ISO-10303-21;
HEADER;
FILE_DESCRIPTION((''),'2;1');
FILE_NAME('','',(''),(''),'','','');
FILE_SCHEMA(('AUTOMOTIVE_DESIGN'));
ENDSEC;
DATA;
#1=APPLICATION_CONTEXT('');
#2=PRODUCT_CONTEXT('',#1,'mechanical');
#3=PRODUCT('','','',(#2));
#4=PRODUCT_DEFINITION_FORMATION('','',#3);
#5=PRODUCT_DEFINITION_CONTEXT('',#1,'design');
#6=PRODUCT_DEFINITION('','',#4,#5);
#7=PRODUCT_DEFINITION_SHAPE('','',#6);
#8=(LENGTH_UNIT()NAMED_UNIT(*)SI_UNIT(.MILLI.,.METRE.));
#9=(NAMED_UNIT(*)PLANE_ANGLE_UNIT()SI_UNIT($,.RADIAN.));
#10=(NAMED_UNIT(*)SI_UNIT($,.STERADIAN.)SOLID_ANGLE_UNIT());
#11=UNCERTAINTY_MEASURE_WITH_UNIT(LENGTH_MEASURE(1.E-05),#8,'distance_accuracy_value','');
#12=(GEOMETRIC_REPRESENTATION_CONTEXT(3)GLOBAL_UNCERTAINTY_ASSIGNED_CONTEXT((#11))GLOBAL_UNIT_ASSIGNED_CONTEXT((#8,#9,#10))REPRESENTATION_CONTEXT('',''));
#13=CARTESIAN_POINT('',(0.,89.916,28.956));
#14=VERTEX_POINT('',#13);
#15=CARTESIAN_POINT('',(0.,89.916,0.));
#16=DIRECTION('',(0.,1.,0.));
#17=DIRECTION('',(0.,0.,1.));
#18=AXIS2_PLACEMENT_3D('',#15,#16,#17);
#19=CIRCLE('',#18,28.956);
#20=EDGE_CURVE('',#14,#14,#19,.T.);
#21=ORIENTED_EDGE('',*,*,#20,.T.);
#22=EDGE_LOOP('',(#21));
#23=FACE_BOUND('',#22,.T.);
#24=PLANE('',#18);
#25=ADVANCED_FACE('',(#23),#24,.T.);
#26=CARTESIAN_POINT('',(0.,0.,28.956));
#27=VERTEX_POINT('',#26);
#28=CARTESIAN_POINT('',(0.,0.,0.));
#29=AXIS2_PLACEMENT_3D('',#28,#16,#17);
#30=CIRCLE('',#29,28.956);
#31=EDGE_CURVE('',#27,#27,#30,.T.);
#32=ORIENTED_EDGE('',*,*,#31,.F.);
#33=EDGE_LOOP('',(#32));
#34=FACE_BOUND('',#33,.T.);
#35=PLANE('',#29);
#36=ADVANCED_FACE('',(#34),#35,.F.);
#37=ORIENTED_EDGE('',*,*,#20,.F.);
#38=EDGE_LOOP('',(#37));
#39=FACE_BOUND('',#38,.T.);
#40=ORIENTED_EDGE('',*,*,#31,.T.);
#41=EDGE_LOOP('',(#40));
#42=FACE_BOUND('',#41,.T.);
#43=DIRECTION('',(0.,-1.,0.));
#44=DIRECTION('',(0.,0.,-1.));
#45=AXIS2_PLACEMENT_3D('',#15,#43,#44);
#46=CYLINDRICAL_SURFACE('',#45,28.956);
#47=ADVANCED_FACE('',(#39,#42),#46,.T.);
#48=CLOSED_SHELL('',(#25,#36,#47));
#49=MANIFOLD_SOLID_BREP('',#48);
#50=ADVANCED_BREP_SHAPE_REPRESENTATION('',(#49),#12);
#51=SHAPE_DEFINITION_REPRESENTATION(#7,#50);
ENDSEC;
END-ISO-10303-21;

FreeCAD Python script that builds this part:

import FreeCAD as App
import Part
import Sketcher

V = App.Vector
Q = App.Units.Quantity

doc = App.newDocument("Part")
params = doc.addObject("Spreadsheet::Sheet", "Params")
for row, (alias, value) in enumerate([
    ("sketch1_diameter", "2.28 in"),
    ("pad1_length", "3.54 in"),
], start=1):
    params.set(f"A{row}", alias)
    params.set(f"B{row}", "=" + value)
    params.setAlias(f"B{row}", alias)

body = doc.addObject("PartDesign::Body", "Body")

# Sketch on XZ plane
sketch1 = body.newObject("Sketcher::SketchObject", "Sketch")
sketch1.AttachmentSupport = (doc.getObject("XZ_Plane"), [""])
sketch1.MapMode = "FlatFace"
sketch1.addGeometry(Part.Circle(V(0, 0, 0), V(0, 0, 1), 29), False)
sketch1.addConstraint([
    Sketcher.Constraint("Coincident", 0, 3, -1, 1),
    Sketcher.Constraint("Diameter", 0, Q("2.28 in")),
])
sketch1.setExpression("Constraints[1]", "Params.sketch1_diameter")
pad1 = body.newObject("PartDesign::Pad", "Pad")
pad1.Profile = sketch1
pad1.setExpression("Length", "Params.pad1_length")
pad1.Reversed = True

doc.recompute()
